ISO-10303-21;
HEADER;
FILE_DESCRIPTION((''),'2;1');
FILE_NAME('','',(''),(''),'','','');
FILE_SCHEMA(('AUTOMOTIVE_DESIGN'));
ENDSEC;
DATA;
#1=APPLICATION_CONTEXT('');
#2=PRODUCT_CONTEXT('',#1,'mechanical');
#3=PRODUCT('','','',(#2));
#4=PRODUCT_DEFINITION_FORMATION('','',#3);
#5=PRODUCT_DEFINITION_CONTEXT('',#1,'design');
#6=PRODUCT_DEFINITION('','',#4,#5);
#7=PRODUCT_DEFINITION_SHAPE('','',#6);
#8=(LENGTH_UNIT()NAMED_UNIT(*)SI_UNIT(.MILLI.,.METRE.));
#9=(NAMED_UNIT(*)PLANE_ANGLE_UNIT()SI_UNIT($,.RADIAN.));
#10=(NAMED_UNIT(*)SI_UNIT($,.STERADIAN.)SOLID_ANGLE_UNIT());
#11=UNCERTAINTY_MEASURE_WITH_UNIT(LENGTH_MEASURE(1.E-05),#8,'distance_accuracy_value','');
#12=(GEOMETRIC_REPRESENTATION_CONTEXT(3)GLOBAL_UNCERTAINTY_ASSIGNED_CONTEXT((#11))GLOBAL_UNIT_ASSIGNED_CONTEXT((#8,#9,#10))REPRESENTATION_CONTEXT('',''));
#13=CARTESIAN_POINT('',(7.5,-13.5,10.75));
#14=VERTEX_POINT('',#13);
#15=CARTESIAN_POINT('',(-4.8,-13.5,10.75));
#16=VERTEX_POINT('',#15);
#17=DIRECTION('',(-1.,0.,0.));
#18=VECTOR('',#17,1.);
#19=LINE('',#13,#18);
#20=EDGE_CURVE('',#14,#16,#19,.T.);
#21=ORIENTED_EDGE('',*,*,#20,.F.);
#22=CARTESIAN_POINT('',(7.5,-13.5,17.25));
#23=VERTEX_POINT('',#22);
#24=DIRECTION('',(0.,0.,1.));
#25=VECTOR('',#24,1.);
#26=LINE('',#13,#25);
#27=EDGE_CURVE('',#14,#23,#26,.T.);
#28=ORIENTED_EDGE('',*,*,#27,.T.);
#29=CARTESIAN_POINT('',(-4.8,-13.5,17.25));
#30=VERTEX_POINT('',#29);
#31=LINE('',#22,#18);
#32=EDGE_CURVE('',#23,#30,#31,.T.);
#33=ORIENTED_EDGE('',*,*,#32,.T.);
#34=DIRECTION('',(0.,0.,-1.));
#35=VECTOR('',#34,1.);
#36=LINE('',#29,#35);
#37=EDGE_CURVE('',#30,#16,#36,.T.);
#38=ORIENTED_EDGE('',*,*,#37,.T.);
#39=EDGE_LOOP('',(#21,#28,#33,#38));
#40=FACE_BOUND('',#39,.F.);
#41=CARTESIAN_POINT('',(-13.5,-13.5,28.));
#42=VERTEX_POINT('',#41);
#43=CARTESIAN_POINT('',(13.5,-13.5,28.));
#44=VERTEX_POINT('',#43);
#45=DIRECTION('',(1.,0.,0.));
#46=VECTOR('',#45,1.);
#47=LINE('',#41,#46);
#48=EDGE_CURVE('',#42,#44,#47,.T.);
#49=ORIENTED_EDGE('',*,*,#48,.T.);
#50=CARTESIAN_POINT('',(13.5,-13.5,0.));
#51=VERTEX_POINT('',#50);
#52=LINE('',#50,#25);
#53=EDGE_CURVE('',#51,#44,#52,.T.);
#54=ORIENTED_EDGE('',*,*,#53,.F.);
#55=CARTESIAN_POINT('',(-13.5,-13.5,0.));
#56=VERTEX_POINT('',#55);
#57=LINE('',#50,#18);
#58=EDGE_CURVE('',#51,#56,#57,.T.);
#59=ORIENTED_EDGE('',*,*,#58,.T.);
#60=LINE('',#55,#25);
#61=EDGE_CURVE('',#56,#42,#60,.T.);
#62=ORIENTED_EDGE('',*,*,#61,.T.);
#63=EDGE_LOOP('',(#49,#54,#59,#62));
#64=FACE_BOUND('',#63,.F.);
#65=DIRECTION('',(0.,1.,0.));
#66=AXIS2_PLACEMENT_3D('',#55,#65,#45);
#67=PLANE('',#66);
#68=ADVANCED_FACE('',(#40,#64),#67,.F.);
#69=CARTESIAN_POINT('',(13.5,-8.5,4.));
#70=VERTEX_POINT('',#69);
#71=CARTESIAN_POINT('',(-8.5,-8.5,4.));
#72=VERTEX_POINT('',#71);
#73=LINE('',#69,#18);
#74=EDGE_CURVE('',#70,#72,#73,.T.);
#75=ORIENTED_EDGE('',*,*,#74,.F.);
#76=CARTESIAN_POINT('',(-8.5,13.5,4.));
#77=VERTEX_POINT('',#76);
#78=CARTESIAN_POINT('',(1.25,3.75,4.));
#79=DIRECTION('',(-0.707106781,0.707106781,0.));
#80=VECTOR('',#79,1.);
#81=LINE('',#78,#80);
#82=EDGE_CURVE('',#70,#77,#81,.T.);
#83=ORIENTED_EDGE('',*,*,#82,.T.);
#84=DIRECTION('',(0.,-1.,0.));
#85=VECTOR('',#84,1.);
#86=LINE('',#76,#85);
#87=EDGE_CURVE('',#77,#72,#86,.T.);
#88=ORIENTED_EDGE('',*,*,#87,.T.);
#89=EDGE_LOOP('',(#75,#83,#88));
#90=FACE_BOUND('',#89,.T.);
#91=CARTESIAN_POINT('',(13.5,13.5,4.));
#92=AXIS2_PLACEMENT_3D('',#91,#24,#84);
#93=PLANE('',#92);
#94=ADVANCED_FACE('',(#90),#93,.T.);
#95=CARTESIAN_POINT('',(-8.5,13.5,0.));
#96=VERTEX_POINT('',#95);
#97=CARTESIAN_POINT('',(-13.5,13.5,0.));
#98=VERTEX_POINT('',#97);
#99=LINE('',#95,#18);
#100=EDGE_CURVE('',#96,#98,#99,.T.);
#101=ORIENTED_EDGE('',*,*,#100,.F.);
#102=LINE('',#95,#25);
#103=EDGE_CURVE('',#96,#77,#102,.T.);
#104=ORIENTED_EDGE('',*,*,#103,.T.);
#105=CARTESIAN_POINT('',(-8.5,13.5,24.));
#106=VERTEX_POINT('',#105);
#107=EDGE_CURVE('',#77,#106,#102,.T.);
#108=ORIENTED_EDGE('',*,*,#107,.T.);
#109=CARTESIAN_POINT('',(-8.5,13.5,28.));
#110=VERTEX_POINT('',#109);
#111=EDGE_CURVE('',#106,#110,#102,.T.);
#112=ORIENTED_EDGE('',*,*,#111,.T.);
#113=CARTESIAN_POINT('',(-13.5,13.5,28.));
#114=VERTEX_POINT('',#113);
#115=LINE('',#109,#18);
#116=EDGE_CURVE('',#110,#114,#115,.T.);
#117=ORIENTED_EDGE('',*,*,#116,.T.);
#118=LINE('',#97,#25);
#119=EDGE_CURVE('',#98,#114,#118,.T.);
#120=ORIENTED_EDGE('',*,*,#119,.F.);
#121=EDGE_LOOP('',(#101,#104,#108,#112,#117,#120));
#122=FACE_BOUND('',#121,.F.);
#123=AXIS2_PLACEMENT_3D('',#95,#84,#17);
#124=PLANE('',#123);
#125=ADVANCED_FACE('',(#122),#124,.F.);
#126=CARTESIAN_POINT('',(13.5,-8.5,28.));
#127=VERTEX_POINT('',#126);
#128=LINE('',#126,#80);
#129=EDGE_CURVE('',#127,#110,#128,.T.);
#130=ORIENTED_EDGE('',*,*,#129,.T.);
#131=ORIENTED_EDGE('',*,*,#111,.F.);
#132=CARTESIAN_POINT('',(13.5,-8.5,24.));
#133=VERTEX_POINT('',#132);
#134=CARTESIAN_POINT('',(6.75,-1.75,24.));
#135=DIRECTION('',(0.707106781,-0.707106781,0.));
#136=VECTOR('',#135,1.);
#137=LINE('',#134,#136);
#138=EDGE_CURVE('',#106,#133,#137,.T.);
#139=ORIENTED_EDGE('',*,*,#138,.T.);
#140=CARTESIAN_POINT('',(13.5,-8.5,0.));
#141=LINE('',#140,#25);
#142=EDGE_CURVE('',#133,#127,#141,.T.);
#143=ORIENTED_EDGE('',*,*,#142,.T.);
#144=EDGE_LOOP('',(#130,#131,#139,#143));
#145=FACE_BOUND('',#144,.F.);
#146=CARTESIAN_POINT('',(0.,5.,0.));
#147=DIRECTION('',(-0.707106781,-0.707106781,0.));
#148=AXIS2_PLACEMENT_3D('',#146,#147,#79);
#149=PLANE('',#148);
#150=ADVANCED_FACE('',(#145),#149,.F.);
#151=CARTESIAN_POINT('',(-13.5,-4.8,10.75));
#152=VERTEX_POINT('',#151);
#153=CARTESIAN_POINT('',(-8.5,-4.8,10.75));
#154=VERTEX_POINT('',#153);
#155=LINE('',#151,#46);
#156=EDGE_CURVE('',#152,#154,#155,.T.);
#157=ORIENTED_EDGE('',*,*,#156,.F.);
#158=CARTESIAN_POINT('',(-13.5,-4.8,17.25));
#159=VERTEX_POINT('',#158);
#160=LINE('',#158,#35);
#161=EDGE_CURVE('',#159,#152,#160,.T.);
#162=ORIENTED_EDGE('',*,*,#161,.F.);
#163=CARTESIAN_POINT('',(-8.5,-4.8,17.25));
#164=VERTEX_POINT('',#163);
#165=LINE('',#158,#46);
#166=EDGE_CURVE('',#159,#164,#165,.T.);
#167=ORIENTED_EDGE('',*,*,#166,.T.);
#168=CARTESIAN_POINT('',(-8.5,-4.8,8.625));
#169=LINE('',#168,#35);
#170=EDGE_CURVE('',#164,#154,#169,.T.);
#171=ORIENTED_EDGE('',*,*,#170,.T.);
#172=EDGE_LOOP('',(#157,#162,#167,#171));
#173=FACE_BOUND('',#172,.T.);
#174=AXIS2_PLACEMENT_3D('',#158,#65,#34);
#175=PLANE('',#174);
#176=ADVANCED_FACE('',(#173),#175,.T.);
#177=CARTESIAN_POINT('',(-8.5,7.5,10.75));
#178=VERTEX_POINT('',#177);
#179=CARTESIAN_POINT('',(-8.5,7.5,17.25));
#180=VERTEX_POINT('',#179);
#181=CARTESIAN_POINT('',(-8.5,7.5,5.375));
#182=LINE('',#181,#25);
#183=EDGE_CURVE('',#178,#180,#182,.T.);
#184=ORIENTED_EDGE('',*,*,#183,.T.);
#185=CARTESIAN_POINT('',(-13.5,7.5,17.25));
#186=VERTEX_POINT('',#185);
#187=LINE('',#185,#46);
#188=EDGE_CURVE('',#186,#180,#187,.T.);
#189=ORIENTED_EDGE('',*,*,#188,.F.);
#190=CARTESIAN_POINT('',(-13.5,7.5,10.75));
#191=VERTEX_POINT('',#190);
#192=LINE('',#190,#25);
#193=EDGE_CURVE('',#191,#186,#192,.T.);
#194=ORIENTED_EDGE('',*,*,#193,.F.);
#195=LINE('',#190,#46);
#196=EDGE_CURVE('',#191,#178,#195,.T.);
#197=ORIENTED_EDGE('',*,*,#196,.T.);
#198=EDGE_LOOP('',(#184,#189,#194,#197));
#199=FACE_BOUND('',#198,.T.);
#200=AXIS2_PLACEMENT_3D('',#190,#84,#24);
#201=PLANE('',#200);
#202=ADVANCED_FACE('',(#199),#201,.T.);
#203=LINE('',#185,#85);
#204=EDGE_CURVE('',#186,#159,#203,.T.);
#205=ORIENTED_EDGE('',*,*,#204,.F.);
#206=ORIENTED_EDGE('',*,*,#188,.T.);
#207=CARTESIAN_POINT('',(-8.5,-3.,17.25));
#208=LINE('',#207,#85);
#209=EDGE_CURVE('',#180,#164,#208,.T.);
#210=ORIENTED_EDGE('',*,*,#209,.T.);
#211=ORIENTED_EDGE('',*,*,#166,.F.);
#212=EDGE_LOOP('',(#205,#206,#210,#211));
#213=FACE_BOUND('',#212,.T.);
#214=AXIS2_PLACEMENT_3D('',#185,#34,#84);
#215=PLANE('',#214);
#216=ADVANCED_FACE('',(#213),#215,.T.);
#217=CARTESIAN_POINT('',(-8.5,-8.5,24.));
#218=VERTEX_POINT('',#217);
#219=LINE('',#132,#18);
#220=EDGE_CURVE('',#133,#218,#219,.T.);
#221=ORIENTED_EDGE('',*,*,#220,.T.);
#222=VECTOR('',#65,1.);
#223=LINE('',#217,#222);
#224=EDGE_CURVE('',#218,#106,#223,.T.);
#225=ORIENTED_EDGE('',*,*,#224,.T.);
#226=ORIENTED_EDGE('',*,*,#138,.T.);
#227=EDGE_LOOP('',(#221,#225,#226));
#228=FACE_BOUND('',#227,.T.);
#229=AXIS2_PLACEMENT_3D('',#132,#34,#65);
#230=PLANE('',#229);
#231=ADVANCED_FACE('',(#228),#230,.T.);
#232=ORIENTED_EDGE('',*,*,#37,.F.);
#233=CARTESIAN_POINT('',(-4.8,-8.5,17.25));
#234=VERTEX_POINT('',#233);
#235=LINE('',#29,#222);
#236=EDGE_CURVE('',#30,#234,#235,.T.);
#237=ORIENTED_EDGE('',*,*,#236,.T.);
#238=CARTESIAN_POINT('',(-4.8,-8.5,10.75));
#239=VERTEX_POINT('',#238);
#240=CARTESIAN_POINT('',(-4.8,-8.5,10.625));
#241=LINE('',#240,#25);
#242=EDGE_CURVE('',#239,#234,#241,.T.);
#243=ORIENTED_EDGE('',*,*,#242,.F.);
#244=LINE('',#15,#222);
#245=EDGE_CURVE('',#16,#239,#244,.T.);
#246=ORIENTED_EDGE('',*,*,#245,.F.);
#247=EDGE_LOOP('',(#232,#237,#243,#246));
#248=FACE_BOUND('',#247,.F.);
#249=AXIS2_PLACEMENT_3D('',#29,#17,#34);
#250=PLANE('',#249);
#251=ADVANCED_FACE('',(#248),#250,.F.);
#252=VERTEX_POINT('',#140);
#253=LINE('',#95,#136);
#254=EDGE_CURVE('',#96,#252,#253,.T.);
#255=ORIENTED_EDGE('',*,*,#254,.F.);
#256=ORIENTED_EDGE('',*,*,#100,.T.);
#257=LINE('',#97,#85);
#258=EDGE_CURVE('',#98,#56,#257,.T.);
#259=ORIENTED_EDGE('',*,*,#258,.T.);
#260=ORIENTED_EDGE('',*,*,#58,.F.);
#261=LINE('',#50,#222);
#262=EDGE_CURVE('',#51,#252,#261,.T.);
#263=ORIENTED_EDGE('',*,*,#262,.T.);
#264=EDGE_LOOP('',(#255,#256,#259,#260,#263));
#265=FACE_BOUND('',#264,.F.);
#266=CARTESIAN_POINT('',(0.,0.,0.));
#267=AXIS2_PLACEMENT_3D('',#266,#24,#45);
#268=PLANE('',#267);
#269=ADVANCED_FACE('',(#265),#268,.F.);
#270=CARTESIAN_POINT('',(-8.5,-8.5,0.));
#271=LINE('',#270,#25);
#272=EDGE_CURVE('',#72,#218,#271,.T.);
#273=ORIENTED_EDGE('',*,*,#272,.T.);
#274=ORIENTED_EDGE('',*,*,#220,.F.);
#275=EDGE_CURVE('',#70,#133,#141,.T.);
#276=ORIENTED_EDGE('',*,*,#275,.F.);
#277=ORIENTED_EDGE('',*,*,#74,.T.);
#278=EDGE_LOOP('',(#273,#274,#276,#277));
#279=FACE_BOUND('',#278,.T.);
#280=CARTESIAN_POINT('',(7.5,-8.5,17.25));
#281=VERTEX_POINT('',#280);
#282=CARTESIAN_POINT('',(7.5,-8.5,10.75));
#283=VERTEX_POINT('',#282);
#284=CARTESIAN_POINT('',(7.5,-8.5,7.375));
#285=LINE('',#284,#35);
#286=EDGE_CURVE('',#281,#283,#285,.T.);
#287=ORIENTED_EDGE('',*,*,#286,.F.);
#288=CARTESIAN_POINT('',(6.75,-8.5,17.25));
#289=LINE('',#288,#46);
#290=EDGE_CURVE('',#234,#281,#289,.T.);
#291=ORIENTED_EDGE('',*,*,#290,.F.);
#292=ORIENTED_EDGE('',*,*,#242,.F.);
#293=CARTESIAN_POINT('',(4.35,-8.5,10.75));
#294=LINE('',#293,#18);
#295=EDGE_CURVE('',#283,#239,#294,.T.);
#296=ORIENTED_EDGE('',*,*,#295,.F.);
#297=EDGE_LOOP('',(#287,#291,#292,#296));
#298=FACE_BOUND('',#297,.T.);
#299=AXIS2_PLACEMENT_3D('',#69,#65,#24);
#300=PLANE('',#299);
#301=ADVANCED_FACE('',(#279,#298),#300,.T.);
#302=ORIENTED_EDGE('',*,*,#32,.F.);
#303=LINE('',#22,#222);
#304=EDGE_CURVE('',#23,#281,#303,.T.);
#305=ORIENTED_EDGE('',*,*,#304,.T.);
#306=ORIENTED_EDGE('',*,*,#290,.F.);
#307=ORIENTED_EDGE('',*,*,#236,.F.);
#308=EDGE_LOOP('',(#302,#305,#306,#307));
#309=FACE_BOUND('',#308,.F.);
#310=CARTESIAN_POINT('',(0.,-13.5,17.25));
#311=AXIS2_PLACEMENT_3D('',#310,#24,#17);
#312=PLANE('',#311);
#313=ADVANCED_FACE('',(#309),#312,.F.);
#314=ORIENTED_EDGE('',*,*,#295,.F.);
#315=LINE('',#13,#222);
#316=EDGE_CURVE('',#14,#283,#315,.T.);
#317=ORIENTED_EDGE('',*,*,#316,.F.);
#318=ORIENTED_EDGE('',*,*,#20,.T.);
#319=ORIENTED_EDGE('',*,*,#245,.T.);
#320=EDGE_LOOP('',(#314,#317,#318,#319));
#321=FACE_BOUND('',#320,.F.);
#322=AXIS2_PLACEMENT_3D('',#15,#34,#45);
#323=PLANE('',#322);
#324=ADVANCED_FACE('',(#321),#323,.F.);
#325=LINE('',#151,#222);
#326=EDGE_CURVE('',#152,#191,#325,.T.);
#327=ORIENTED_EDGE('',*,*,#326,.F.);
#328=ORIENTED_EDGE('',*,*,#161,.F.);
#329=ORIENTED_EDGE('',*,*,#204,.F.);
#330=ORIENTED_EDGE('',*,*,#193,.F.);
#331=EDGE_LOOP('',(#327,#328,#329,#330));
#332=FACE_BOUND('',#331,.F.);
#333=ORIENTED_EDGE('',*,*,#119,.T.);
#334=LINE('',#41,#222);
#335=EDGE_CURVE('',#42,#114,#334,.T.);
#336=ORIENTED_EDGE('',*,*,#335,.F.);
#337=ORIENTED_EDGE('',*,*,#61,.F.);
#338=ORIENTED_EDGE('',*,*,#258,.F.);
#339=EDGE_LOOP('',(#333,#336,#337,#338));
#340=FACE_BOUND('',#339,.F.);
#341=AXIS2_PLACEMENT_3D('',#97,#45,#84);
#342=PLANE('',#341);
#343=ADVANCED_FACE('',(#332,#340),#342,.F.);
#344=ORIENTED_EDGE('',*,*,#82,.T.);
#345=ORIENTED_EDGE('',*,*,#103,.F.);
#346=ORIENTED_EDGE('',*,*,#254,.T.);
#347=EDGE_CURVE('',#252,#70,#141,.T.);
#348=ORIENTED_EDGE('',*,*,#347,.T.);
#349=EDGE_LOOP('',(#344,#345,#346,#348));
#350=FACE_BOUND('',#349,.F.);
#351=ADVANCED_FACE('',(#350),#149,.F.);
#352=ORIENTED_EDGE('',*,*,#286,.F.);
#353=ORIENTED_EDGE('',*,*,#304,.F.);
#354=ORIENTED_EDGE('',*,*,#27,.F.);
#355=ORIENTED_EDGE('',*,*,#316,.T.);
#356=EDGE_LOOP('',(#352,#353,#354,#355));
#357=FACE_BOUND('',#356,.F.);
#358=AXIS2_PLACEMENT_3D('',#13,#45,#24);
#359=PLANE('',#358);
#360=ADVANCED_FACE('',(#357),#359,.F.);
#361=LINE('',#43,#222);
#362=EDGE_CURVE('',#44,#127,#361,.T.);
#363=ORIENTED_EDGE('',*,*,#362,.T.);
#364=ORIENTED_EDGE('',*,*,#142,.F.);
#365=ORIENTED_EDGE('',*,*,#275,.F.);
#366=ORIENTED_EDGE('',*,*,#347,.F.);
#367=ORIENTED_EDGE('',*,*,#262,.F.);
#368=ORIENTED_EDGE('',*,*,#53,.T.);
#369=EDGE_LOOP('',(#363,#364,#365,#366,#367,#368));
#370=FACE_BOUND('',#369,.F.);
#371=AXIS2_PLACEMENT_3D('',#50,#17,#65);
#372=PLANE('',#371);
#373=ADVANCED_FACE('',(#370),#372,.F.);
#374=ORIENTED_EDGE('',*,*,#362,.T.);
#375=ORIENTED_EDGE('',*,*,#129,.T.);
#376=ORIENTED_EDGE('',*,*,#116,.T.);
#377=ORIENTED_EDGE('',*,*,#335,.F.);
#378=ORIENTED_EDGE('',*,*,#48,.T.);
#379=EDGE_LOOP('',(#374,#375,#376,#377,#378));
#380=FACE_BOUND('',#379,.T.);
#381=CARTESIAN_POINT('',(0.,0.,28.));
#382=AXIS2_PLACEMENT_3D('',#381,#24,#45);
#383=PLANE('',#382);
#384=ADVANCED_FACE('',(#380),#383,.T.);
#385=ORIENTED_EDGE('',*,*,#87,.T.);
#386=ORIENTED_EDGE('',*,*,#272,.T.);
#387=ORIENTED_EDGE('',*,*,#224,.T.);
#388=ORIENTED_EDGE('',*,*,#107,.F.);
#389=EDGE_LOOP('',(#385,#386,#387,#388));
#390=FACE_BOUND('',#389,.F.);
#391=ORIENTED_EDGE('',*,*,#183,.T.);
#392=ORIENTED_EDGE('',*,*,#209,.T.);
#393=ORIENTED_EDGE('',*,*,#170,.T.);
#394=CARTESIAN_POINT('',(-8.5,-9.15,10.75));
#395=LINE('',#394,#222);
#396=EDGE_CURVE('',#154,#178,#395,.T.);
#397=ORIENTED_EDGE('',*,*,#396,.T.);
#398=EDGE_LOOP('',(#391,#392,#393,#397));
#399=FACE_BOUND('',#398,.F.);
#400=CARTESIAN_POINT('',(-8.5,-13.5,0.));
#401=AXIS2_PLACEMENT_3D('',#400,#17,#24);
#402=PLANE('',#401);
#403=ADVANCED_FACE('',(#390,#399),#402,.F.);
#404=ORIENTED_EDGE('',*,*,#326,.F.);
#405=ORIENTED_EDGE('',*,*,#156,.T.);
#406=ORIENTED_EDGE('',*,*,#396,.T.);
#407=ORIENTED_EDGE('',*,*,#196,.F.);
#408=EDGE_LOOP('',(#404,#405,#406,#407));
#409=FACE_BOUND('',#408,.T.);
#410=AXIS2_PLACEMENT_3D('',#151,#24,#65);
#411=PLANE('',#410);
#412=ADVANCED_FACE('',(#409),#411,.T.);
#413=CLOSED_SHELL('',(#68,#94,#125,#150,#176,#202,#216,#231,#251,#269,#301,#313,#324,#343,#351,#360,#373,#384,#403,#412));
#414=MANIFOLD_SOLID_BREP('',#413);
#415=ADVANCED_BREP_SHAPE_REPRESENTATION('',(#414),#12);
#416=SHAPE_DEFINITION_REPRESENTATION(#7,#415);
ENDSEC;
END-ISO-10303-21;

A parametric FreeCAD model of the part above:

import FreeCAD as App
import Part
import Sketcher
from FreeCAD import Vector
Q = App.Units.Quantity


def add_polygon(sketch, points):
    """Adds a closed chain of lines whose ends are joined by coincident constraints."""
    first, n = sketch.GeometryCount, len(points)
    for a, b in zip(points, points[1:] + points[:1]):
        sketch.addGeometry(Part.LineSegment(App.Vector(*a, 0), App.Vector(*b, 0)), False)
    for i in range(n):
        sketch.addConstraint(Sketcher.Constraint("Coincident", first + i, 2, first + (i + 1) % n, 1))

doc = App.newDocument("Part")
body = doc.addObject("PartDesign::Body", "Body")

sketch1 = body.newObject("Sketcher::SketchObject", "Sketch")
sketch1.AttachmentSupport = (doc.getObject("XY_Plane"), [""])
sketch1.MapMode = "FlatFace"
add_polygon(sketch1, [(-13.5, 13.5), (-13.5, -13.5), (13.5, -13.5), (13.5, -8.5), (-8.5, 13.5)])
sketch1.addConstraint([
    Sketcher.Constraint("Vertical", 0),
    Sketcher.Constraint("Horizontal", 1),
    Sketcher.Constraint("Vertical", 2),
    Sketcher.Constraint("Horizontal", 4),
    Sketcher.Constraint("Symmetric", 1, 2, 4, 2, -1, 1),
    Sketcher.Constraint("Equal", 1, 0),
    Sketcher.Constraint("Equal", 4, 2),
    Sketcher.Constraint("DistanceX", 1, 1, 1, 2, Q("27 mm")),
    Sketcher.Constraint("DistanceX", 4, 2, 4, 1, Q("5 mm")),
])
pad1 = body.newObject("PartDesign::Pad", "Pad")
pad1.Profile = sketch1
pad1.Length = 28

sketch2 = body.newObject("Sketcher::SketchObject", "Sketch001")
sketch2.AttachmentSupport = (doc.getObject("YZ_Plane"), [""])
sketch2.MapMode = "FlatFace"
sketch2.AttachmentOffset = App.Placement(Vector(0, 0, 13.5), App.Rotation())
add_polygon(sketch2, [(13.5, 4), (-8.5, 4), (-8.5, 24), (13.5, 24)])
sketch2.addConstraint([
    Sketcher.Constraint("Horizontal", 0),
    Sketcher.Constraint("Vertical", 1),
    Sketcher.Constraint("Horizontal", 2),
    Sketcher.Constraint("Vertical", 3),
    Sketcher.Constraint("DistanceY", 1, 1, 1, 2, Q("20 mm")),
    Sketcher.Constraint("DistanceY", -1, 1, 0, 2, Q("4 mm")),
    Sketcher.Constraint("DistanceX", 0, 2, 0, 1, Q("22 mm")),
    Sketcher.Constraint("DistanceX", 0, 2, -1, 1, Q("8.5 mm")),
])
pocket1 = body.newObject("PartDesign::Pocket", "Pocket")
pocket1.Profile = sketch2
pocket1.Length = 22

sketch3 = body.newObject("Sketcher::SketchObject", "Sketch002")
sketch3.AttachmentSupport = (doc.getObject("YZ_Plane"), [""])
sketch3.MapMode = "FlatFace"
sketch3.AttachmentOffset = App.Placement(Vector(0, 0, -13.5), App.Rotation())
add_polygon(sketch3, [(7.5, 17.25), (7.5, 10.75), (-4.8, 10.75), (-4.8, 17.25)])
sketch3.addConstraint([
    Sketcher.Constraint("Vertical", 0),
    Sketcher.Constraint("Horizontal", 1),
    Sketcher.Constraint("Vertical", 2),
    Sketcher.Constraint("Horizontal", 3),
    Sketcher.Constraint("DistanceX", 1, 2, 1, 1, Q("12.3 mm")),
    Sketcher.Constraint("DistanceY", 0, 2, 0, 1, Q("6.5 mm")),
    Sketcher.Constraint("DistanceY", -1, 1, 0, 2, Q("10.75 mm")),
    Sketcher.Constraint("DistanceX", -1, 1, 0, 2, Q("7.5 mm")),
])
pocket2 = body.newObject("PartDesign::Pocket", "Pocket001")
pocket2.Profile = sketch3
pocket2.Type = "ThroughAll"
pocket2.Reversed = True
doc.recompute()

datumline = body.newObject("PartDesign::Line", "DatumLine")
datumline.Placement = App.Placement(Vector(-13.5, -13.5, 0), App.Rotation(Vector(0, 0, 1), Vector(0, 0, 1)))
polarpattern = body.newObject("PartDesign::PolarPattern", "PolarPattern")
polarpattern.Originals = [pocket2]
polarpattern.Axis = (datumline, [""])
polarpattern.Angle = 90
polarpattern.Occurrences = 2
polarpattern.Reversed = True
body.Tip = polarpattern

sketch4 = body.newObject("Sketcher::SketchObject", "Sketch003")
sketch4.AttachmentSupport = (doc.getObject("XZ_Plane"), [""])
sketch4.MapMode = "FlatFace"
sketch4.AttachmentOffset = App.Placement(Vector(0, 0, 13.5), App.Rotation())
add_polygon(sketch4, [(-4.8, 10.75), (7.5, 10.75), (7.5, 17.25), (-4.8, 17.25)])
sketch4.addConstraint([
    Sketcher.Constraint("Horizontal", 0),
    Sketcher.Constraint("Vertical", 1),
    Sketcher.Constraint("Horizontal", 2),
    Sketcher.Constraint("Vertical", 3),
    Sketcher.Constraint("DistanceX", 0, 1, 0, 2, Q("12.3 mm")),
    Sketcher.Constraint("DistanceY", 1, 1, 1, 2, Q("6.5 mm")),
    Sketcher.Constraint("DistanceY", -1, 1, 0, 2, Q("10.75 mm")),
    Sketcher.Constraint("DistanceX", -1, 1, 0, 2, Q("7.5 mm")),
])
pocket3 = body.newObject("PartDesign::Pocket", "Pocket002")
pocket3.Profile = sketch4
pocket3.Type = "ThroughAll"

doc.recompute()
